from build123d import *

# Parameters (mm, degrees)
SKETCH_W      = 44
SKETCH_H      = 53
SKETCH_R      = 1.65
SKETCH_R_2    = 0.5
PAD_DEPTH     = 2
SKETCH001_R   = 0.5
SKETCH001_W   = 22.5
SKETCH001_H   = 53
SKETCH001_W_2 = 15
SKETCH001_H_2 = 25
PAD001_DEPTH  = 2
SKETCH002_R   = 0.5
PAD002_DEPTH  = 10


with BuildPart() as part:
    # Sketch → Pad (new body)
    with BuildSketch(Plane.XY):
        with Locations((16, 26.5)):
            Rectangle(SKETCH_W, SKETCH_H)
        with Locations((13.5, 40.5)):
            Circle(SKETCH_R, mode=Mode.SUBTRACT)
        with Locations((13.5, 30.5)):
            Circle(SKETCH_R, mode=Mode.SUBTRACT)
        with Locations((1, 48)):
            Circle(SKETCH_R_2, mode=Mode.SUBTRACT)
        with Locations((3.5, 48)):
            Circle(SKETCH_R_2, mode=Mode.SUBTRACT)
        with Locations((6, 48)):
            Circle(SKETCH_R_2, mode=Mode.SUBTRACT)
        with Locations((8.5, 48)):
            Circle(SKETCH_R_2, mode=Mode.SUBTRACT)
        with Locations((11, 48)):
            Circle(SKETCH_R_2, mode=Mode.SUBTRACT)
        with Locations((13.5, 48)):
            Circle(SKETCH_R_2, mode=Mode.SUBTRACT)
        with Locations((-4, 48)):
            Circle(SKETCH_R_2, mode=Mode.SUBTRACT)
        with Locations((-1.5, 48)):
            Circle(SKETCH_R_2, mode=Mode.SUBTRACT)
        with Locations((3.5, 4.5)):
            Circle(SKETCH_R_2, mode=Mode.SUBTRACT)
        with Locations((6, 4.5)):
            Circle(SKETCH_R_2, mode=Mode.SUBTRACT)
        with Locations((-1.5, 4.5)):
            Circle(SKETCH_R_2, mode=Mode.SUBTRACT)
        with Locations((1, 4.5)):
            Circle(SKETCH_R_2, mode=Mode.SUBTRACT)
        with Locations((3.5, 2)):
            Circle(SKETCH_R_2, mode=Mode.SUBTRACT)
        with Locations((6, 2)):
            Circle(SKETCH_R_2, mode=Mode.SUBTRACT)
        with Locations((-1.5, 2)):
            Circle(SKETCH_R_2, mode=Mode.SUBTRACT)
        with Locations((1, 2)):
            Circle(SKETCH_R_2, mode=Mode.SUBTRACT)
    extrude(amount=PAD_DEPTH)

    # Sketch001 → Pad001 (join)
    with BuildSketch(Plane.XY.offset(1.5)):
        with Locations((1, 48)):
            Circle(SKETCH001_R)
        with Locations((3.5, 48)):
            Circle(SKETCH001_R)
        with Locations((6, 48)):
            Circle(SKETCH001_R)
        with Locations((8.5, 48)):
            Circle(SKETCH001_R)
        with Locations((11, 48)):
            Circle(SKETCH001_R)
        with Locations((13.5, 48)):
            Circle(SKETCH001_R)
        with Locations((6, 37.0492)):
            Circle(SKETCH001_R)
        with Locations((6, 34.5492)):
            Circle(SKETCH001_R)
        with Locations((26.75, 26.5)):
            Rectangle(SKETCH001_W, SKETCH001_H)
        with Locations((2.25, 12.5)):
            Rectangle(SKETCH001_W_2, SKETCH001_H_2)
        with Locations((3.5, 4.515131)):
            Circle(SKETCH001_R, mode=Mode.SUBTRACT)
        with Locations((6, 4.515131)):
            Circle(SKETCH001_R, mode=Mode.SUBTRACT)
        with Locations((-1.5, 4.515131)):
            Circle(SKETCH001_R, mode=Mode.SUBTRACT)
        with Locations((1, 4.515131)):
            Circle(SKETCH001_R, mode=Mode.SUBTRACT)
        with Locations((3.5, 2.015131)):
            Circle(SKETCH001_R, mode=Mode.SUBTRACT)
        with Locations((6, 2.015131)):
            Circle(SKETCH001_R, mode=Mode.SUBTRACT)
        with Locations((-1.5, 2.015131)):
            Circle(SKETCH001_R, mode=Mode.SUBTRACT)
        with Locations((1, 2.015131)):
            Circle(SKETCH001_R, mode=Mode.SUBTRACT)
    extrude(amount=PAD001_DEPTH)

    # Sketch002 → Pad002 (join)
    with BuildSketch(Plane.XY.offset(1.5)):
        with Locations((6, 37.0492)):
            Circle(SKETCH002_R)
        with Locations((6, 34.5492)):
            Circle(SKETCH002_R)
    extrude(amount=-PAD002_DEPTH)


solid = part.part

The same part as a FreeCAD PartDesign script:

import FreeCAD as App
import Part
import Sketcher
Q = App.Units.Quantity


def add_polygon(sketch, points):
    """Adds a closed chain of lines whose ends are joined by coincident constraints."""
    first, n = sketch.GeometryCount, len(points)
    for a, b in zip(points, points[1:] + points[:1]):
        sketch.addGeometry(Part.LineSegment(App.Vector(*a, 0), App.Vector(*b, 0)), False)
    for i in range(n):
        sketch.addConstraint(Sketcher.Constraint("Coincident", first + i, 2, first + (i + 1) % n, 1))

doc = App.newDocument("Part")
body = doc.addObject("PartDesign::Body", "Body")

# Sketch on XY plane
sketch1 = doc.addObject("Sketcher::SketchObject", "Sketch")
body.addObject(sketch1)
sketch1.AttachmentSupport = (doc.XY_Plane, [""])
sketch1.MapMode = "FlatFace"
add_polygon(sketch1, [(-6, 53), (-6, 0), (38, 0), (38, 53)])  # lines 0-3
sketch1.addGeometry(Part.Circle(App.Vector(-1.5, 2, 0), App.Vector(0, 0, 1), 0.5), False)  # 4
sketch1.addGeometry(Part.Circle(App.Vector(-1.5, 4.5, 0), App.Vector(0, 0, 1), 0.5), False)  # 5
sketch1.addGeometry(Part.Circle(App.Vector(1, 2, 0), App.Vector(0, 0, 1), 0.5), False)  # 6
sketch1.addGeometry(Part.Circle(App.Vector(1, 4.5, 0), App.Vector(0, 0, 1), 0.5), False)  # 7
sketch1.addGeometry(Part.Circle(App.Vector(3.5, 2, 0), App.Vector(0, 0, 1), 0.5), False)  # 8
sketch1.addGeometry(Part.Circle(App.Vector(3.5, 4.5, 0), App.Vector(0, 0, 1), 0.5), False)  # 9
sketch1.addGeometry(Part.Circle(App.Vector(6, 2, 0), App.Vector(0, 0, 1), 0.5), False)  # 10
sketch1.addGeometry(Part.Circle(App.Vector(6, 4.5, 0), App.Vector(0, 0, 1), 0.5), False)  # 11
sketch1.addGeometry(Part.Circle(App.Vector(-4, 48, 0), App.Vector(0, 0, 1), 0.5), False)  # 12
sketch1.addGeometry(Part.Circle(App.Vector(-1.5, 48, 0), App.Vector(0, 0, 1), 0.5), False)  # 13
sketch1.addGeometry(Part.Circle(App.Vector(1, 48, 0), App.Vector(0, 0, 1), 0.5), False)  # 14
sketch1.addGeometry(Part.Circle(App.Vector(3.5, 48, 0), App.Vector(0, 0, 1), 0.5), False)  # 15
sketch1.addGeometry(Part.Circle(App.Vector(13.5, 30.5, 0), App.Vector(0, 0, 1), 1.6), False)  # 16
sketch1.addGeometry(Part.Circle(App.Vector(6, 48, 0), App.Vector(0, 0, 1), 0.5), False)  # 17
sketch1.addGeometry(Part.Circle(App.Vector(8.5, 48, 0), App.Vector(0, 0, 1), 0.5), False)  # 18
sketch1.addGeometry(Part.Circle(App.Vector(13.5, 40.5, 0), App.Vector(0, 0, 1), 1.6), False)  # 19
sketch1.addGeometry(Part.Circle(App.Vector(11, 48, 0), App.Vector(0, 0, 1), 0.5), False)  # 20
sketch1.addGeometry(Part.Circle(App.Vector(13.5, 48, 0), App.Vector(0, 0, 1), 0.5), False)  # 21
sketch1.addConstraint([
    Sketcher.Constraint("Vertical", 0),
    Sketcher.Constraint("Horizontal", 1),
    Sketcher.Constraint("Vertical", 2),
    Sketcher.Constraint("Horizontal", 3),
    Sketcher.Constraint("Equal", 4, 5),
    Sketcher.Constraint("Equal", 5, 6),
    Sketcher.Constraint("Equal", 6, 7),
    Sketcher.Constraint("Equal", 7, 8),
    Sketcher.Constraint("Equal", 8, 9),
    Sketcher.Constraint("Equal", 9, 10),
    Sketcher.Constraint("Equal", 10, 11),
    Sketcher.Constraint("Equal", 11, 12),
    Sketcher.Constraint("Equal", 12, 13),
    Sketcher.Constraint("Equal", 13, 14),
    Sketcher.Constraint("Equal", 14, 15),
    Sketcher.Constraint("Equal", 15, 17),
    Sketcher.Constraint("Equal", 17, 18),
    Sketcher.Constraint("Equal", 16, 19),
    Sketcher.Constraint("Equal", 18, 20),
    Sketcher.Constraint("Equal", 20, 21),
    Sketcher.Constraint("PointOnObject", 0, 2, -1),
    Sketcher.Constraint("Horizontal", 4, 3, 6, 3),
    Sketcher.Constraint("Horizontal", 5, 3, 7, 3),
    Sketcher.Constraint("Horizontal", 6, 3, 8, 3),
    Sketcher.Constraint("Horizontal", 7, 3, 9, 3),
    Sketcher.Constraint("Horizontal", 8, 3, 10, 3),
    Sketcher.Constraint("Horizontal", 9, 3, 11, 3),
    Sketcher.Constraint("Horizontal", 12, 3, 13, 3),
    Sketcher.Constraint("Horizontal", 13, 3, 14, 3),
    Sketcher.Constraint("Horizontal", 14, 3, 15, 3),
    Sketcher.Constraint("Horizontal", 15, 3, 17, 3),
    Sketcher.Constraint("Horizontal", 17, 3, 18, 3),
    Sketcher.Constraint("Horizontal", 18, 3, 20, 3),
    Sketcher.Constraint("Horizontal", 20, 3, 21, 3),
    Sketcher.Constraint("Vertical", 4, 3, 5, 3),
    Sketcher.Constraint("Vertical", 6, 3, 7, 3),
    Sketcher.Constraint("Vertical", 8, 3, 9, 3),
    Sketcher.Constraint("Vertical", 10, 3, 11, 3),
    Sketcher.Constraint("Vertical", 5, 3, 13, 3),
    Sketcher.Constraint("Vertical", 7, 3, 14, 3),
    Sketcher.Constraint("Vertical", 9, 3, 15, 3),
    Sketcher.Constraint("Vertical", 11, 3, 17, 3),
    Sketcher.Constraint("Vertical", 16, 3, 19, 3),
    Sketcher.Constraint("Vertical", 19, 3, 21, 3),
    Sketcher.Constraint("Diameter", 4, Q("1 mm")),
    Sketcher.Constraint("Diameter", 16, Q("3.3 mm")),
    Sketcher.Constraint("DistanceX", 1, 1, 1, 2, Q("44 mm")),
    Sketcher.Constraint("DistanceY", 0, 2, 0, 1, Q("53 mm")),
    Sketcher.Constraint("DistanceY", -1, 1, 4, 3, Q("2 mm")),
    Sketcher.Constraint("DistanceX", -1, 1, 6, 3, Q("1 mm")),
    Sketcher.Constraint("DistanceX", -1, 1, 10, 3, Q("6 mm")),
    Sketcher.Constraint("DistanceX", 12, 3, -1, 1, Q("4 mm")),
    Sketcher.Constraint("DistanceY", -1, 1, 12, 3, Q("48 mm")),
    Sketcher.Constraint("DistanceX", -1, 1, 20, 3, Q("11 mm")),
    Sketcher.Constraint("DistanceX", 0, 2, -1, 1, Q("6 mm")),
    Sketcher.Constraint("DistanceX", 4, 3, 8, 3, Q("5 mm")),
    Sketcher.Constraint("DistanceX", 15, 3, 16, 3, Q("10 mm")),
    Sketcher.Constraint("DistanceY", 11, 3, 16, 3, Q("26 mm")),
    Sketcher.Constraint("DistanceX", 15, 3, 18, 3, Q("5 mm")),
    Sketcher.Constraint("DistanceY", 16, 3, 19, 3, Q("10 mm")),
    Sketcher.Constraint("DistanceX", 4, 3, -1, 1, Q("1.5 mm")),
    Sketcher.Constraint("DistanceY", -1, 1, 5, 3, Q("4.5 mm")),
])
pad1 = doc.addObject("PartDesign::Pad", "Pad")
body.addObject(pad1)
pad1.Profile = sketch1
pad1.Length = 2

# Sketch on XY plane
sketch2 = doc.addObject("Sketcher::SketchObject", "Sketch001")
body.addObject(sketch2)
sketch2.AttachmentSupport = (doc.XY_Plane, [""])
sketch2.MapMode = "FlatFace"
sketch2.AttachmentOffset = App.Placement(App.Vector(0, 0, 1.5), App.Rotation())
sketch2.addGeometry(Part.Circle(App.Vector(1, 48, 0), App.Vector(0, 0, 1), 0.5), False)  # 0
sketch2.addGeometry(Part.Circle(App.Vector(3.5, 48, 0), App.Vector(0, 0, 1), 0.5), False)  # 1
sketch2.addGeometry(Part.Circle(App.Vector(6, 48, 0), App.Vector(0, 0, 1), 0.5), False)  # 2
sketch2.addGeometry(Part.Circle(App.Vector(8.5, 48, 0), App.Vector(0, 0, 1), 0.5), False)  # 3
sketch2.addGeometry(Part.Circle(App.Vector(11, 48, 0), App.Vector(0, 0, 1), 0.5), False)  # 4
sketch2.addGeometry(Part.Circle(App.Vector(13.5, 48, 0), App.Vector(0, 0, 1), 0.5), False)  # 5
sketch2.addGeometry(Part.Circle(App.Vector(6, 37, 0), App.Vector(0, 0, 1), 0.5), False)  # 6
sketch2.addGeometry(Part.Circle(App.Vector(6, 34.5, 0), App.Vector(0, 0, 1), 0.5), False)  # 7
add_polygon(sketch2, [(15.5, 53), (15.5, 0), (38, 0), (38, 53)])  # lines 8-11
add_polygon(sketch2, [(-5.2, 25), (-5.2, 0), (9.8, 0), (9.8, 25)])  # lines 12-15
sketch2.addGeometry(Part.Circle(App.Vector(-1.5, 2, 0), App.Vector(0, 0, 1), 0.5), False)  # 16
sketch2.addGeometry(Part.Circle(App.Vector(1, 2, 0), App.Vector(0, 0, 1), 0.5), False)  # 17
sketch2.addGeometry(Part.Circle(App.Vector(3.5, 2, 0), App.Vector(0, 0, 1), 0.5), False)  # 18
sketch2.addGeometry(Part.Circle(App.Vector(6, 2, 0), App.Vector(0, 0, 1), 0.5), False)  # 19
sketch2.addGeometry(Part.Circle(App.Vector(-1.5, 4.5, 0), App.Vector(0, 0, 1), 0.5), False)  # 20
sketch2.addGeometry(Part.Circle(App.Vector(1, 4.5, 0), App.Vector(0, 0, 1), 0.5), False)  # 21
sketch2.addGeometry(Part.Circle(App.Vector(3.5, 4.5, 0), App.Vector(0, 0, 1), 0.5), False)  # 22
sketch2.addGeometry(Part.Circle(App.Vector(6, 4.5, 0), App.Vector(0, 0, 1), 0.5), False)  # 23
sketch2.addConstraint([
    Sketcher.Constraint("Vertical", 8),
    Sketcher.Constraint("Horizontal", 9),
    Sketcher.Constraint("Vertical", 10),
    Sketcher.Constraint("Horizontal", 11),
    Sketcher.Constraint("Vertical", 12),
    Sketcher.Constraint("Horizontal", 13),
    Sketcher.Constraint("Vertical", 14),
    Sketcher.Constraint("Horizontal", 15),
    Sketcher.Constraint("Equal", 0, 1),
    Sketcher.Constraint("Equal", 1, 2),
    Sketcher.Constraint("Equal", 2, 3),
    Sketcher.Constraint("Equal", 3, 4),
    Sketcher.Constraint("Equal", 4, 5),
    Sketcher.Constraint("Equal", 5, 6),
    Sketcher.Constraint("Equal", 6, 7),
    Sketcher.Constraint("Equal", 7, 16),
    Sketcher.Constraint("Equal", 16, 17),
    Sketcher.Constraint("Equal", 17, 18),
    Sketcher.Constraint("Equal", 18, 19),
    Sketcher.Constraint("Equal", 19, 20),
    Sketcher.Constraint("Equal", 20, 21),
    Sketcher.Constraint("Equal", 21, 22),
    Sketcher.Constraint("Equal", 22, 23),
    Sketcher.Constraint("PointOnObject", 8, 2, -1),
    Sketcher.Constraint("PointOnObject", 12, 2, -1),
    Sketcher.Constraint("Horizontal", 0, 3, 1, 3),
    Sketcher.Constraint("Horizontal", 1, 3, 2, 3),
    Sketcher.Constraint("Horizontal", 2, 3, 3, 3),
    Sketcher.Constraint("Horizontal", 3, 3, 4, 3),
    Sketcher.Constraint("Horizontal", 4, 3, 5, 3),
    Sketcher.Constraint("Horizontal", 16, 3, 17, 3),
    Sketcher.Constraint("Horizontal", 17, 3, 18, 3),
    Sketcher.Constraint("Horizontal", 18, 3, 19, 3),
    Sketcher.Constraint("Horizontal", 20, 3, 21, 3),
    Sketcher.Constraint("Horizontal", 21, 3, 22, 3),
    Sketcher.Constraint("Horizontal", 22, 3, 23, 3),
    Sketcher.Constraint("Vertical", 2, 3, 6, 3),
    Sketcher.Constraint("Vertical", 6, 3, 7, 3),
    Sketcher.Constraint("Vertical", 0, 3, 17, 3),
    Sketcher.Constraint("Vertical", 1, 3, 18, 3),
    Sketcher.Constraint("Vertical", 7, 3, 19, 3),
    Sketcher.Constraint("Vertical", 16, 3, 20, 3),
    Sketcher.Constraint("Vertical", 17, 3, 21, 3),
    Sketcher.Constraint("Vertical", 18, 3, 22, 3),
    Sketcher.Constraint("Vertical", 19, 3, 23, 3),
    Sketcher.Constraint("Diameter", 0, Q("1 mm")),
    Sketcher.Constraint("DistanceX", 13, 1, 13, 2, Q("15 mm")),
    Sketcher.Constraint("DistanceY", 8, 2, 8, 1, Q("53 mm")),
    Sketcher.Constraint("DistanceY", 12, 2, 12, 1, Q("25 mm")),
    Sketcher.Constraint("DistanceX", 9, 1, 9, 2, Q("22.5 mm")),
    Sketcher.Constraint("DistanceX", -1, 1, 0, 3, Q("1 mm")),
    Sketcher.Constraint("DistanceY", -1, 1, 0, 3, Q("48 mm")),
    Sketcher.Constraint("DistanceX", -1, 1, 2, 3, Q("6 mm")),
    Sketcher.Constraint("DistanceX", -1, 1, 4, 3, Q("11 mm")),
    Sketcher.Constraint("DistanceX", -1, 1, 9, 2, Q("38 mm")),
    Sketcher.Constraint("DistanceX", 1, 3, 3, 3, Q("5 mm")),
    Sketcher.Constraint("DistanceX", 3, 3, 5, 3, Q("5 mm")),
    Sketcher.Constraint("DistanceX", 16, 3, 1, 3, Q("5 mm")),
    Sketcher.Constraint("DistanceX", 18, 3, 8, 2, Q("12 mm")),
    Sketcher.Constraint("DistanceY", 7, 3, 6, 3, Q("2.5 mm")),
    Sketcher.Constraint("DistanceY", 16, 3, 20, 3, Q("2.5 mm")),
    Sketcher.Constraint("DistanceX", 12, 2, -1, 1, Q("5.25 mm")),
    Sketcher.Constraint("DistanceY", -1, 1, 6, 3, Q("37.0492 mm")),
    Sketcher.Constraint("DistanceY", -1, 1, 16, 3, Q("2.015131 mm")),
])
pad2 = doc.addObject("PartDesign::Pad", "Pad001")
body.addObject(pad2)
pad2.Profile = sketch2
pad2.Length = 2

# Sketch on XY plane
sketch3 = doc.addObject("Sketcher::SketchObject", "Sketch002")
body.addObject(sketch3)
sketch3.AttachmentSupport = (doc.XY_Plane, [""])
sketch3.MapMode = "FlatFace"
sketch3.AttachmentOffset = App.Placement(App.Vector(0, 0, 1.5), App.Rotation())
sketch3.addGeometry([
    Part.Circle(App.Vector(6, 37, 0), App.Vector(0, 0, 1), 0.5),
    Part.Circle(App.Vector(6, 34.5, 0), App.Vector(0, 0, 1), 0.5),
], False)
sketch3.addConstraint([
    Sketcher.Constraint("Equal", 0, 1),
    Sketcher.Constraint("Vertical", 0, 3, 1, 3),
    Sketcher.Constraint("Diameter", 0, Q("1 mm")),
    Sketcher.Constraint("DistanceX", -1, 1, 0, 3, Q("6 mm")),
    Sketcher.Constraint("DistanceY", 1, 3, 0, 3, Q("2.5 mm")),
    Sketcher.Constraint("DistanceY", -1, 1, 0, 3, Q("37.0492 mm")),
])
pad3 = doc.addObject("PartDesign::Pad", "Pad002")
body.addObject(pad3)
pad3.Profile = sketch3
pad3.Length = 10
pad3.Reversed = True

doc.recompute()
